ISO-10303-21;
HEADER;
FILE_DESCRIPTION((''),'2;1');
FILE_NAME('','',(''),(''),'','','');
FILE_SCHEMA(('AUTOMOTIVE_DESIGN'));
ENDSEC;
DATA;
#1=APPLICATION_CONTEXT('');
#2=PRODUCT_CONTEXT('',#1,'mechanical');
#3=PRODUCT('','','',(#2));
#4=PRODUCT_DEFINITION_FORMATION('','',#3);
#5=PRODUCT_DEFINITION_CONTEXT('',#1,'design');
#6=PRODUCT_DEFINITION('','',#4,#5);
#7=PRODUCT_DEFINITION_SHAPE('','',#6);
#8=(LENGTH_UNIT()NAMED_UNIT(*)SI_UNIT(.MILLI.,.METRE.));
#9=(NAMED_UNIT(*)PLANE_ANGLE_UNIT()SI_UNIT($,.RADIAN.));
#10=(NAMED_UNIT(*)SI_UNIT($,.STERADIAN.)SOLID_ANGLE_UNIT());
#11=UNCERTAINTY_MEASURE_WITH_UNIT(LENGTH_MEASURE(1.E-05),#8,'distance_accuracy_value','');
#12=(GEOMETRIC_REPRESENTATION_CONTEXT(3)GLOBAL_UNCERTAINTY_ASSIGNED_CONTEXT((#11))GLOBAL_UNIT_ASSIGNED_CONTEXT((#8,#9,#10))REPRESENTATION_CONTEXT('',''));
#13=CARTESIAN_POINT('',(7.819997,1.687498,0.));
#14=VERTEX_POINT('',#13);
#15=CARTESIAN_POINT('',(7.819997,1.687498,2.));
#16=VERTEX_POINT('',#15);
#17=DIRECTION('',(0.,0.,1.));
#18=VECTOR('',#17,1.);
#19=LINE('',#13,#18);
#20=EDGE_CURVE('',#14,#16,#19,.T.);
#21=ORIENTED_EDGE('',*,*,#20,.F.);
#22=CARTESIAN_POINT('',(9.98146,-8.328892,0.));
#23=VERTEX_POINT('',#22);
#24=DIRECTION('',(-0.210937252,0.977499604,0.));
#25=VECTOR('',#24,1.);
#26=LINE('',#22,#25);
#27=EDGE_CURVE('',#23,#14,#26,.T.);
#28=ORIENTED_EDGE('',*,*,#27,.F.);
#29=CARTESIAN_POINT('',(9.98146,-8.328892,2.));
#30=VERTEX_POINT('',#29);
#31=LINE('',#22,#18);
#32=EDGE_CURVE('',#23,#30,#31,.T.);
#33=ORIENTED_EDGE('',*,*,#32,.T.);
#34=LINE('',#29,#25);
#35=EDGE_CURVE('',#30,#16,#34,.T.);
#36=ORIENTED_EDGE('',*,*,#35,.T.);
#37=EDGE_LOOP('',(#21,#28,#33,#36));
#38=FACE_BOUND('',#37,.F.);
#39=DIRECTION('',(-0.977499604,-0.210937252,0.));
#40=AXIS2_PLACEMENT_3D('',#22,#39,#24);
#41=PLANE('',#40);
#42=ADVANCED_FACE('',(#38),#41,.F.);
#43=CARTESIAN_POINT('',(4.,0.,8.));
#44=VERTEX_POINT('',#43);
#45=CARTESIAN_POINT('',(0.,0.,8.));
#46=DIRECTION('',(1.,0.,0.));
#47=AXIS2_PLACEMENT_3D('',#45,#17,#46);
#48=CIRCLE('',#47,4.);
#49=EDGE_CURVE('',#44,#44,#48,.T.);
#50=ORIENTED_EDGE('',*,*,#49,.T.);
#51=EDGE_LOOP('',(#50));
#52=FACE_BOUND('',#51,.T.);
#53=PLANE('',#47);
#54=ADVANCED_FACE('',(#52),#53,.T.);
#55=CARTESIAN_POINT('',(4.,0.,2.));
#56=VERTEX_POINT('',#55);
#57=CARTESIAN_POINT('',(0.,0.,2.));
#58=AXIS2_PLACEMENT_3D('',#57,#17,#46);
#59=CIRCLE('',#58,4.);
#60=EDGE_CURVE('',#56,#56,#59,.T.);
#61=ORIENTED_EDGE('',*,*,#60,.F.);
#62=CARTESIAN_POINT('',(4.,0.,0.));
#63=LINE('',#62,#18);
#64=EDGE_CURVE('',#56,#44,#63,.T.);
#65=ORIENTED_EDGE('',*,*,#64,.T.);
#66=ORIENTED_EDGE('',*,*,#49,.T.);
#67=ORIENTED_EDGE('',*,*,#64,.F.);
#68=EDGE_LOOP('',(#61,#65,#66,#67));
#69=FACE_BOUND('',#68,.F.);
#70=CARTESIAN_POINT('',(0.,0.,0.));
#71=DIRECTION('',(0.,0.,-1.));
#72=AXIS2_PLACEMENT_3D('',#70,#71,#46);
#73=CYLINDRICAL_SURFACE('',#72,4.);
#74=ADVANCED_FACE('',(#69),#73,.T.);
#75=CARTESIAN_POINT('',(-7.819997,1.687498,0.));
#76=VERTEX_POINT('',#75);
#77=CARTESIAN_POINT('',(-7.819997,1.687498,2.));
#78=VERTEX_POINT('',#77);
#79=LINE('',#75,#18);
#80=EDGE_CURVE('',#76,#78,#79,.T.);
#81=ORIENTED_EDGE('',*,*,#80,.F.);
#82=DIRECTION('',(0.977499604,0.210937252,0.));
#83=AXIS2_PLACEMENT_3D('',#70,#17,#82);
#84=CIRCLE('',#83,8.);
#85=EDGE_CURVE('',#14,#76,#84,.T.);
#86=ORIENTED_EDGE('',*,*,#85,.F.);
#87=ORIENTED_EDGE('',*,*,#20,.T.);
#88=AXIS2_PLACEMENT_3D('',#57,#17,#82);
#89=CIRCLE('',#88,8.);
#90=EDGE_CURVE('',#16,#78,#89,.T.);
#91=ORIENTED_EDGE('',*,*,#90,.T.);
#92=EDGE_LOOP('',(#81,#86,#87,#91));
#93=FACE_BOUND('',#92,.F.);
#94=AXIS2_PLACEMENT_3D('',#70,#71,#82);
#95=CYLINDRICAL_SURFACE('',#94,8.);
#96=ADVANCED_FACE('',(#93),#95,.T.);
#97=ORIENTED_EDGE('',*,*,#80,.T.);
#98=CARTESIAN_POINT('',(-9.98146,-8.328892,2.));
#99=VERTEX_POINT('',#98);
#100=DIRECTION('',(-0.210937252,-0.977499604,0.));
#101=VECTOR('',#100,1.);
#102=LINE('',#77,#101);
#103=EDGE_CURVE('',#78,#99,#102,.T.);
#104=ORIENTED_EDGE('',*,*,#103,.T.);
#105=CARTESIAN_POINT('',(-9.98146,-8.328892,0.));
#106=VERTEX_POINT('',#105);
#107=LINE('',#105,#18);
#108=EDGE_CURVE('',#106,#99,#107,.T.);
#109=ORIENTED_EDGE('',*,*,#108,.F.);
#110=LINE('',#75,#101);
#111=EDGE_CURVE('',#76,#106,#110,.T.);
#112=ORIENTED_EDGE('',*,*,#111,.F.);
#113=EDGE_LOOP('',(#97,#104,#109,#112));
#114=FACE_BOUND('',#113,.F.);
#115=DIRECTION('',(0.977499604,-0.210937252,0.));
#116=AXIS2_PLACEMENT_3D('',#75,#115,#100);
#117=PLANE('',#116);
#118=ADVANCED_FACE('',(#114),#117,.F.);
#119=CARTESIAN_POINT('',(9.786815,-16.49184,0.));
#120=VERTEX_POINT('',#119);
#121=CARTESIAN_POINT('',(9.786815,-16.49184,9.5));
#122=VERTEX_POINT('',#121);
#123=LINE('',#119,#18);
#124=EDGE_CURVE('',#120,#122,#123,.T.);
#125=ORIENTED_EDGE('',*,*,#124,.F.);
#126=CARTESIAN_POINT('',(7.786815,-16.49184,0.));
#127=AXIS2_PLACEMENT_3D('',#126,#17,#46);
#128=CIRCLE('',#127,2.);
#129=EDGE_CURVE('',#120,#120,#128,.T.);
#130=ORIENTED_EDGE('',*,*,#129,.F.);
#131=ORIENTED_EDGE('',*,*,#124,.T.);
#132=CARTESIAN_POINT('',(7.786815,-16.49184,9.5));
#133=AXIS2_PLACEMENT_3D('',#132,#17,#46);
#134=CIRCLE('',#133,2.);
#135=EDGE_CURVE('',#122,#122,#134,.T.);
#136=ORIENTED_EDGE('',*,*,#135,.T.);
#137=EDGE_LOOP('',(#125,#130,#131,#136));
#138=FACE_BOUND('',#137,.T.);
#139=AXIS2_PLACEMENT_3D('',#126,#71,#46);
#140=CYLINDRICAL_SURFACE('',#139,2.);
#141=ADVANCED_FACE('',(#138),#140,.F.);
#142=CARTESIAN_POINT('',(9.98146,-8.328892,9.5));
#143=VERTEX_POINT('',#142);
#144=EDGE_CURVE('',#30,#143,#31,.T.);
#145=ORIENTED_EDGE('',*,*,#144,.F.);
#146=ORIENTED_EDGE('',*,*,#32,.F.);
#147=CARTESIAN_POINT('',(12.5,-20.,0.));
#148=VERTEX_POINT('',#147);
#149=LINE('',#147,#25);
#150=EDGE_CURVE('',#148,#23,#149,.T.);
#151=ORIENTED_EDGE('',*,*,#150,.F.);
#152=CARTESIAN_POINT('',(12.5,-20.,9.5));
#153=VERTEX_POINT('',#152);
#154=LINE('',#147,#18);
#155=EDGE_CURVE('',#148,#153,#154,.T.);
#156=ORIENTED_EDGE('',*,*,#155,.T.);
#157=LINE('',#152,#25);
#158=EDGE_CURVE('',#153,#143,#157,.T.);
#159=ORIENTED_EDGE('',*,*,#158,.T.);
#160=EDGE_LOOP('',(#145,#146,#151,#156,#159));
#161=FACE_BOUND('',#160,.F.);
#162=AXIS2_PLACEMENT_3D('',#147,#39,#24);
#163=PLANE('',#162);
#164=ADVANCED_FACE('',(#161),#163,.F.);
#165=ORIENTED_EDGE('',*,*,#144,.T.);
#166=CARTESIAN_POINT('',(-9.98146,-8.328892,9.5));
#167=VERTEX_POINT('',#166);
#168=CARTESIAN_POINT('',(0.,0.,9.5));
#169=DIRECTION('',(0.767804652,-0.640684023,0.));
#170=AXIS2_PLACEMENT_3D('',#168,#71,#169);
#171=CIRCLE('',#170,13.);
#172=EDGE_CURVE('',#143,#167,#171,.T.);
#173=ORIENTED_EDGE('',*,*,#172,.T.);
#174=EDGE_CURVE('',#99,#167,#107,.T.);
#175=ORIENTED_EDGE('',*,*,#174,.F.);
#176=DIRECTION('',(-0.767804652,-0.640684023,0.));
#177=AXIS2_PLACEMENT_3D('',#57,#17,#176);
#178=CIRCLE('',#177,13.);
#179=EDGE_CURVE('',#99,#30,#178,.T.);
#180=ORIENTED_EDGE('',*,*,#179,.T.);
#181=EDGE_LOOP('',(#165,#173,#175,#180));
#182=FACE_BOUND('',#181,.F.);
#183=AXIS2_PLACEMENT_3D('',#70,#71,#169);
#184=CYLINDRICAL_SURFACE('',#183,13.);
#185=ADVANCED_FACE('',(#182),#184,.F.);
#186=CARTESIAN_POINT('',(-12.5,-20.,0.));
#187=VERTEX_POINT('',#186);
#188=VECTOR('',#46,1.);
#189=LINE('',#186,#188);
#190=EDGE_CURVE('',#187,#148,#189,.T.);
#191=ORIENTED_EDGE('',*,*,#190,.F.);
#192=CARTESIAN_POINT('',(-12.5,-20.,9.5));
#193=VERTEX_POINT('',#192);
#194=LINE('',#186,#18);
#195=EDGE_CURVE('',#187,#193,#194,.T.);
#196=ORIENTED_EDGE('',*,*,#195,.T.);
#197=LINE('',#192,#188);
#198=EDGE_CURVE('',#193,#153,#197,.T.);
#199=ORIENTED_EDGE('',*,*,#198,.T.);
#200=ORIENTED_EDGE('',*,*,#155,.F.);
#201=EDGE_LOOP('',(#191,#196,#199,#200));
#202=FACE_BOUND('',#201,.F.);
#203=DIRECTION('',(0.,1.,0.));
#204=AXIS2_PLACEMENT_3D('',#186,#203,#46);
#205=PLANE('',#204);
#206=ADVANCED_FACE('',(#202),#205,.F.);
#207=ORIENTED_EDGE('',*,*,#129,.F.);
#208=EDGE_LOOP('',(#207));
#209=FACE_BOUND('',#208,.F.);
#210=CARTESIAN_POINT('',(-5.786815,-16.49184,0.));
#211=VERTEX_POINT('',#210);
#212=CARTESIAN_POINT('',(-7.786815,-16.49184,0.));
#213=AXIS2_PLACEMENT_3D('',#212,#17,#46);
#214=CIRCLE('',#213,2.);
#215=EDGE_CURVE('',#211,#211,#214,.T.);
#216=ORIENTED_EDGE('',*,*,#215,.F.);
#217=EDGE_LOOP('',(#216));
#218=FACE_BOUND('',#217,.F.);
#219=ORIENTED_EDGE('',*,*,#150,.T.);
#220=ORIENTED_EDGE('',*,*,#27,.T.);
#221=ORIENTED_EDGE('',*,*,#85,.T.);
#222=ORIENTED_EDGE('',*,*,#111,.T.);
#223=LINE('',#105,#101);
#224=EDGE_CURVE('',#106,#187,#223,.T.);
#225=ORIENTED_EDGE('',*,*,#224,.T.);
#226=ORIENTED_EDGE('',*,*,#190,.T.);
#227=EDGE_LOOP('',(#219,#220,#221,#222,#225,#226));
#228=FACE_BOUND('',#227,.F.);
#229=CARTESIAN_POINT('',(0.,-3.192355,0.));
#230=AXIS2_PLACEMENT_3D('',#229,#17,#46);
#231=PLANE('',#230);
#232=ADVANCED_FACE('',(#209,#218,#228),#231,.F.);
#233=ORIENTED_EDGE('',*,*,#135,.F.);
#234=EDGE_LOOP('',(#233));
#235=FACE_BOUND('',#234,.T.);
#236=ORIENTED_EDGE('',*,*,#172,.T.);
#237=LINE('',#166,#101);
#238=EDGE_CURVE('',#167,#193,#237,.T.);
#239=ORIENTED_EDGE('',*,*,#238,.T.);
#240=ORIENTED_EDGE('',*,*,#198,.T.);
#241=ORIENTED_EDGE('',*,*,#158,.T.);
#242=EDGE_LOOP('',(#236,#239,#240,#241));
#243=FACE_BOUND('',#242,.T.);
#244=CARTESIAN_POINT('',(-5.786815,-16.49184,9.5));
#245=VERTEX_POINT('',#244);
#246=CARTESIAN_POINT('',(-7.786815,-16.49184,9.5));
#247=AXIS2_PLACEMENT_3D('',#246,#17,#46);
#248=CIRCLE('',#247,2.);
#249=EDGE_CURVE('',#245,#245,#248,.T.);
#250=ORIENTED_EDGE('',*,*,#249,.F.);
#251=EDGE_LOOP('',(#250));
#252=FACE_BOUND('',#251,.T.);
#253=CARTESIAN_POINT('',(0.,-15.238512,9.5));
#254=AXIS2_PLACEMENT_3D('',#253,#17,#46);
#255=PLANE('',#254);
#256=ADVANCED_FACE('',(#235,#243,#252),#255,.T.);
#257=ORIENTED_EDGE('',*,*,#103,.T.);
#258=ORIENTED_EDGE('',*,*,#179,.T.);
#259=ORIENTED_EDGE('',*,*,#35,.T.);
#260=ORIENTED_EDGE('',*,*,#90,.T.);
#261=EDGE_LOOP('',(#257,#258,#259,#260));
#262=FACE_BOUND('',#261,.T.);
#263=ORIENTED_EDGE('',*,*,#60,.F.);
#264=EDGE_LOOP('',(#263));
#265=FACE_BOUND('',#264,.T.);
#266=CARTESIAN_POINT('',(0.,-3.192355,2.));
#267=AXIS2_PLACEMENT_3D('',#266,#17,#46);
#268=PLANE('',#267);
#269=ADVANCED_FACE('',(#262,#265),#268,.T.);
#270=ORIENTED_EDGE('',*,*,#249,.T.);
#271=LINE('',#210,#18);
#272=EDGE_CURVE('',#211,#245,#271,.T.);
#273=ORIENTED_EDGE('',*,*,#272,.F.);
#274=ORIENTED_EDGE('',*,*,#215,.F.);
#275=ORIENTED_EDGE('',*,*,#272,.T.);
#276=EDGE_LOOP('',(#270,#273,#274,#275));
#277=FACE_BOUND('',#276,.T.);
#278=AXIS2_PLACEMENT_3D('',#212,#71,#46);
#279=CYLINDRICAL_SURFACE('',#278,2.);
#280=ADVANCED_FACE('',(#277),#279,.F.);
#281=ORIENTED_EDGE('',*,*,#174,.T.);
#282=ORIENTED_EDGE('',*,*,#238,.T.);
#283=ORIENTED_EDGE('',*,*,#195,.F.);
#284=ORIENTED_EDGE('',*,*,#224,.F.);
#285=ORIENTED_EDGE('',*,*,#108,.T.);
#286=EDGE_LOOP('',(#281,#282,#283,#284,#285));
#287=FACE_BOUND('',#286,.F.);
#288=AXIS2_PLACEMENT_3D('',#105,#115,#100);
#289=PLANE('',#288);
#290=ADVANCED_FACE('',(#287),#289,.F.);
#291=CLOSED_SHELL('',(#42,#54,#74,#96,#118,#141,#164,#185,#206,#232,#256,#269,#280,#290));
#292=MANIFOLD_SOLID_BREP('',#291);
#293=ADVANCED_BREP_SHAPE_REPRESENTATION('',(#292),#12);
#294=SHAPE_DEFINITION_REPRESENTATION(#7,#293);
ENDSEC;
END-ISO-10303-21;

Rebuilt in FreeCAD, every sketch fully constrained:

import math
import FreeCAD as App
import Part
import Sketcher
from FreeCAD import Vector

doc = App.newDocument("Part")
params = doc.addObject("Spreadsheet::Sheet", "Params")
for row, (alias, value) in enumerate([
    ("sketch1_diameter", "4 mm"),
    ("sketch1_radius", "13 mm"),
    ("sketch1_width", "25 mm"),
    ("pad1_length", "9.5 mm"),
    ("sketch2_diameter", "8 mm"),
    ("pad2_length", "8 mm"),
    ("sketch3_diameter", "8 mm"),
    ("sketch3_radius", "8 mm"),
    ("sketch3_radius2", "13 mm"),
    ("pad3_length", "2 mm"),
], start=1):
    params.set(f"A{row}", alias)
    params.set(f"B{row}", "=" + value)
    params.setAlias(f"B{row}", alias)

body = doc.addObject("PartDesign::Body", "Body")

sketch1 = body.newObject("Sketcher::SketchObject", "Sketch")
sketch1.AttachmentSupport = (doc.getObject("XY_Plane"), [""])
sketch1.MapMode = "FlatFace"
sketch1.addGeometry([
    Part.LineSegment(Vector(12.5, -20, 0), Vector(9.98146, -8.328892, 0)),
    Part.ArcOfCircle(Part.Circle(Vector(0, 0, 0), Vector(0, 0, 1), 13), math.radians(-140.157156), math.radians(-39.842844)),
    Part.LineSegment(Vector(-9.98146, -8.328892, 0), Vector(-12.5, -20, 0)),
    Part.LineSegment(Vector(-12.5, -20, 0), Vector(12.5, -20, 0)),
    Part.Circle(Vector(-7.786815, -16.49184, 0), Vector(0, 0, 1), 2),
    Part.Circle(Vector(7.786815, -16.49184, 0), Vector(0, 0, 1), 2),
], False)
sketch1.addConstraint([
    Sketcher.Constraint("Coincident", 0, 2, 1, 2),
    Sketcher.Constraint("Coincident", 1, 1, 2, 1),
    Sketcher.Constraint("Coincident", 2, 2, 3, 1),
    Sketcher.Constraint("Coincident", 3, 2, 0, 1),
    Sketcher.Constraint("Horizontal", 3),
    Sketcher.Constraint("Coincident", 1, 3, -1, 1),
    Sketcher.Constraint("Equal", 4, 5),
    Sketcher.Constraint("Symmetric", 4, 3, 5, 3, -2),
    Sketcher.Constraint("Horizontal", 0, 2, 1, 1),
    Sketcher.Constraint("Equal", 0, 2),
    Sketcher.Constraint("Diameter", 4, 4.0),
    Sketcher.Constraint("Radius", 1, 13.0),
    Sketcher.Constraint("DistanceX", 3, 1, 3, 2, 25.0),
    Sketcher.Constraint("DistanceY", 2, 2, -1, 1, 20.0),
    Sketcher.Constraint("DistanceY", 4, 3, -1, 1, 16.49184),
    Sketcher.Constraint("DistanceX", -1, 1, 0, 2, 9.98146),
    Sketcher.Constraint("DistanceX", 4, 3, 5, 3, 15.573629),
])
sketch1.setExpression("Constraints[10]", "Params.sketch1_diameter")
sketch1.setExpression("Constraints[11]", "Params.sketch1_radius")
sketch1.setExpression("Constraints[12]", "Params.sketch1_width")
pad1 = body.newObject("PartDesign::Pad", "Pad")
pad1.Profile = sketch1
pad1.setExpression("Length", "Params.pad1_length")
body2 = doc.addObject("PartDesign::Body", "Body001")

sketch2 = body2.newObject("Sketcher::SketchObject", "Sketch001")
sketch2.AttachmentSupport = (doc.getObject("XY_Plane001"), [""])
sketch2.MapMode = "FlatFace"
sketch2.addGeometry(Part.Circle(Vector(0, 0, 0), Vector(0, 0, 1), 4), False)
sketch2.addConstraint([
    Sketcher.Constraint("Coincident", 0, 3, -1, 1),
    Sketcher.Constraint("Diameter", 0, 8.0),
])
sketch2.setExpression("Constraints[1]", "Params.sketch2_diameter")
pad2 = body2.newObject("PartDesign::Pad", "Pad001")
pad2.Profile = sketch2
pad2.setExpression("Length", "Params.pad2_length")
body.AllowCompound = True
doc.recompute()

boolean = body.newObject("PartDesign::Boolean", "Boolean")
boolean.Type = "Fuse"
boolean.addObjects([body2])

sketch3 = body.newObject("Sketcher::SketchObject", "Sketch002")
sketch3.AttachmentSupport = (doc.getObject("XY_Plane"), [""])
sketch3.MapMode = "FlatFace"
sketch3.addGeometry([
    Part.LineSegment(Vector(9.98146, -8.328892, 0), Vector(7.819997, 1.687498, 0)),
    Part.ArcOfCircle(Part.Circle(Vector(0, 0, 0), Vector(0, 0, 1), 8), math.radians(12.177283), math.radians(167.822717)),
    Part.LineSegment(Vector(-7.819997, 1.687498, 0), Vector(-9.98146, -8.328892, 0)),
    Part.ArcOfCircle(Part.Circle(Vector(0, 0, 0), Vector(0, 0, 1), 13), math.radians(-140.157156), math.radians(-39.842844)),
    Part.Circle(Vector(0, 0, 0), Vector(0, 0, 1), 4),
], False)
sketch3.addConstraint([
    Sketcher.Constraint("Tangent", 0, 2, 1, 1),
    Sketcher.Constraint("Tangent", 1, 2, 2, 1),
    Sketcher.Constraint("Coincident", 2, 2, 3, 1),
    Sketcher.Constraint("Coincident", 3, 2, 0, 1),
    Sketcher.Constraint("Coincident", 1, 3, -1, 1),
    Sketcher.Constraint("Coincident", 3, 3, -1, 1),
    Sketcher.Constraint("Coincident", 4, 3, -1, 1),
    Sketcher.Constraint("Horizontal", 0, 2, 1, 2),
    Sketcher.Constraint("Diameter", 4, 8.0),
    Sketcher.Constraint("Radius", 1, 8.0),
    Sketcher.Constraint("Radius", 3, 13.0),
    Sketcher.Constraint("DistanceY", -1, 1, 0, 2, 1.687498),
])
sketch3.setExpression("Constraints[8]", "Params.sketch3_diameter")
sketch3.setExpression("Constraints[9]", "Params.sketch3_radius")
sketch3.setExpression("Constraints[10]", "Params.sketch3_radius2")
pad3 = body.newObject("PartDesign::Pad", "Pad002")
pad3.Profile = sketch3
pad3.setExpression("Length", "Params.pad3_length")

doc.recompute()
